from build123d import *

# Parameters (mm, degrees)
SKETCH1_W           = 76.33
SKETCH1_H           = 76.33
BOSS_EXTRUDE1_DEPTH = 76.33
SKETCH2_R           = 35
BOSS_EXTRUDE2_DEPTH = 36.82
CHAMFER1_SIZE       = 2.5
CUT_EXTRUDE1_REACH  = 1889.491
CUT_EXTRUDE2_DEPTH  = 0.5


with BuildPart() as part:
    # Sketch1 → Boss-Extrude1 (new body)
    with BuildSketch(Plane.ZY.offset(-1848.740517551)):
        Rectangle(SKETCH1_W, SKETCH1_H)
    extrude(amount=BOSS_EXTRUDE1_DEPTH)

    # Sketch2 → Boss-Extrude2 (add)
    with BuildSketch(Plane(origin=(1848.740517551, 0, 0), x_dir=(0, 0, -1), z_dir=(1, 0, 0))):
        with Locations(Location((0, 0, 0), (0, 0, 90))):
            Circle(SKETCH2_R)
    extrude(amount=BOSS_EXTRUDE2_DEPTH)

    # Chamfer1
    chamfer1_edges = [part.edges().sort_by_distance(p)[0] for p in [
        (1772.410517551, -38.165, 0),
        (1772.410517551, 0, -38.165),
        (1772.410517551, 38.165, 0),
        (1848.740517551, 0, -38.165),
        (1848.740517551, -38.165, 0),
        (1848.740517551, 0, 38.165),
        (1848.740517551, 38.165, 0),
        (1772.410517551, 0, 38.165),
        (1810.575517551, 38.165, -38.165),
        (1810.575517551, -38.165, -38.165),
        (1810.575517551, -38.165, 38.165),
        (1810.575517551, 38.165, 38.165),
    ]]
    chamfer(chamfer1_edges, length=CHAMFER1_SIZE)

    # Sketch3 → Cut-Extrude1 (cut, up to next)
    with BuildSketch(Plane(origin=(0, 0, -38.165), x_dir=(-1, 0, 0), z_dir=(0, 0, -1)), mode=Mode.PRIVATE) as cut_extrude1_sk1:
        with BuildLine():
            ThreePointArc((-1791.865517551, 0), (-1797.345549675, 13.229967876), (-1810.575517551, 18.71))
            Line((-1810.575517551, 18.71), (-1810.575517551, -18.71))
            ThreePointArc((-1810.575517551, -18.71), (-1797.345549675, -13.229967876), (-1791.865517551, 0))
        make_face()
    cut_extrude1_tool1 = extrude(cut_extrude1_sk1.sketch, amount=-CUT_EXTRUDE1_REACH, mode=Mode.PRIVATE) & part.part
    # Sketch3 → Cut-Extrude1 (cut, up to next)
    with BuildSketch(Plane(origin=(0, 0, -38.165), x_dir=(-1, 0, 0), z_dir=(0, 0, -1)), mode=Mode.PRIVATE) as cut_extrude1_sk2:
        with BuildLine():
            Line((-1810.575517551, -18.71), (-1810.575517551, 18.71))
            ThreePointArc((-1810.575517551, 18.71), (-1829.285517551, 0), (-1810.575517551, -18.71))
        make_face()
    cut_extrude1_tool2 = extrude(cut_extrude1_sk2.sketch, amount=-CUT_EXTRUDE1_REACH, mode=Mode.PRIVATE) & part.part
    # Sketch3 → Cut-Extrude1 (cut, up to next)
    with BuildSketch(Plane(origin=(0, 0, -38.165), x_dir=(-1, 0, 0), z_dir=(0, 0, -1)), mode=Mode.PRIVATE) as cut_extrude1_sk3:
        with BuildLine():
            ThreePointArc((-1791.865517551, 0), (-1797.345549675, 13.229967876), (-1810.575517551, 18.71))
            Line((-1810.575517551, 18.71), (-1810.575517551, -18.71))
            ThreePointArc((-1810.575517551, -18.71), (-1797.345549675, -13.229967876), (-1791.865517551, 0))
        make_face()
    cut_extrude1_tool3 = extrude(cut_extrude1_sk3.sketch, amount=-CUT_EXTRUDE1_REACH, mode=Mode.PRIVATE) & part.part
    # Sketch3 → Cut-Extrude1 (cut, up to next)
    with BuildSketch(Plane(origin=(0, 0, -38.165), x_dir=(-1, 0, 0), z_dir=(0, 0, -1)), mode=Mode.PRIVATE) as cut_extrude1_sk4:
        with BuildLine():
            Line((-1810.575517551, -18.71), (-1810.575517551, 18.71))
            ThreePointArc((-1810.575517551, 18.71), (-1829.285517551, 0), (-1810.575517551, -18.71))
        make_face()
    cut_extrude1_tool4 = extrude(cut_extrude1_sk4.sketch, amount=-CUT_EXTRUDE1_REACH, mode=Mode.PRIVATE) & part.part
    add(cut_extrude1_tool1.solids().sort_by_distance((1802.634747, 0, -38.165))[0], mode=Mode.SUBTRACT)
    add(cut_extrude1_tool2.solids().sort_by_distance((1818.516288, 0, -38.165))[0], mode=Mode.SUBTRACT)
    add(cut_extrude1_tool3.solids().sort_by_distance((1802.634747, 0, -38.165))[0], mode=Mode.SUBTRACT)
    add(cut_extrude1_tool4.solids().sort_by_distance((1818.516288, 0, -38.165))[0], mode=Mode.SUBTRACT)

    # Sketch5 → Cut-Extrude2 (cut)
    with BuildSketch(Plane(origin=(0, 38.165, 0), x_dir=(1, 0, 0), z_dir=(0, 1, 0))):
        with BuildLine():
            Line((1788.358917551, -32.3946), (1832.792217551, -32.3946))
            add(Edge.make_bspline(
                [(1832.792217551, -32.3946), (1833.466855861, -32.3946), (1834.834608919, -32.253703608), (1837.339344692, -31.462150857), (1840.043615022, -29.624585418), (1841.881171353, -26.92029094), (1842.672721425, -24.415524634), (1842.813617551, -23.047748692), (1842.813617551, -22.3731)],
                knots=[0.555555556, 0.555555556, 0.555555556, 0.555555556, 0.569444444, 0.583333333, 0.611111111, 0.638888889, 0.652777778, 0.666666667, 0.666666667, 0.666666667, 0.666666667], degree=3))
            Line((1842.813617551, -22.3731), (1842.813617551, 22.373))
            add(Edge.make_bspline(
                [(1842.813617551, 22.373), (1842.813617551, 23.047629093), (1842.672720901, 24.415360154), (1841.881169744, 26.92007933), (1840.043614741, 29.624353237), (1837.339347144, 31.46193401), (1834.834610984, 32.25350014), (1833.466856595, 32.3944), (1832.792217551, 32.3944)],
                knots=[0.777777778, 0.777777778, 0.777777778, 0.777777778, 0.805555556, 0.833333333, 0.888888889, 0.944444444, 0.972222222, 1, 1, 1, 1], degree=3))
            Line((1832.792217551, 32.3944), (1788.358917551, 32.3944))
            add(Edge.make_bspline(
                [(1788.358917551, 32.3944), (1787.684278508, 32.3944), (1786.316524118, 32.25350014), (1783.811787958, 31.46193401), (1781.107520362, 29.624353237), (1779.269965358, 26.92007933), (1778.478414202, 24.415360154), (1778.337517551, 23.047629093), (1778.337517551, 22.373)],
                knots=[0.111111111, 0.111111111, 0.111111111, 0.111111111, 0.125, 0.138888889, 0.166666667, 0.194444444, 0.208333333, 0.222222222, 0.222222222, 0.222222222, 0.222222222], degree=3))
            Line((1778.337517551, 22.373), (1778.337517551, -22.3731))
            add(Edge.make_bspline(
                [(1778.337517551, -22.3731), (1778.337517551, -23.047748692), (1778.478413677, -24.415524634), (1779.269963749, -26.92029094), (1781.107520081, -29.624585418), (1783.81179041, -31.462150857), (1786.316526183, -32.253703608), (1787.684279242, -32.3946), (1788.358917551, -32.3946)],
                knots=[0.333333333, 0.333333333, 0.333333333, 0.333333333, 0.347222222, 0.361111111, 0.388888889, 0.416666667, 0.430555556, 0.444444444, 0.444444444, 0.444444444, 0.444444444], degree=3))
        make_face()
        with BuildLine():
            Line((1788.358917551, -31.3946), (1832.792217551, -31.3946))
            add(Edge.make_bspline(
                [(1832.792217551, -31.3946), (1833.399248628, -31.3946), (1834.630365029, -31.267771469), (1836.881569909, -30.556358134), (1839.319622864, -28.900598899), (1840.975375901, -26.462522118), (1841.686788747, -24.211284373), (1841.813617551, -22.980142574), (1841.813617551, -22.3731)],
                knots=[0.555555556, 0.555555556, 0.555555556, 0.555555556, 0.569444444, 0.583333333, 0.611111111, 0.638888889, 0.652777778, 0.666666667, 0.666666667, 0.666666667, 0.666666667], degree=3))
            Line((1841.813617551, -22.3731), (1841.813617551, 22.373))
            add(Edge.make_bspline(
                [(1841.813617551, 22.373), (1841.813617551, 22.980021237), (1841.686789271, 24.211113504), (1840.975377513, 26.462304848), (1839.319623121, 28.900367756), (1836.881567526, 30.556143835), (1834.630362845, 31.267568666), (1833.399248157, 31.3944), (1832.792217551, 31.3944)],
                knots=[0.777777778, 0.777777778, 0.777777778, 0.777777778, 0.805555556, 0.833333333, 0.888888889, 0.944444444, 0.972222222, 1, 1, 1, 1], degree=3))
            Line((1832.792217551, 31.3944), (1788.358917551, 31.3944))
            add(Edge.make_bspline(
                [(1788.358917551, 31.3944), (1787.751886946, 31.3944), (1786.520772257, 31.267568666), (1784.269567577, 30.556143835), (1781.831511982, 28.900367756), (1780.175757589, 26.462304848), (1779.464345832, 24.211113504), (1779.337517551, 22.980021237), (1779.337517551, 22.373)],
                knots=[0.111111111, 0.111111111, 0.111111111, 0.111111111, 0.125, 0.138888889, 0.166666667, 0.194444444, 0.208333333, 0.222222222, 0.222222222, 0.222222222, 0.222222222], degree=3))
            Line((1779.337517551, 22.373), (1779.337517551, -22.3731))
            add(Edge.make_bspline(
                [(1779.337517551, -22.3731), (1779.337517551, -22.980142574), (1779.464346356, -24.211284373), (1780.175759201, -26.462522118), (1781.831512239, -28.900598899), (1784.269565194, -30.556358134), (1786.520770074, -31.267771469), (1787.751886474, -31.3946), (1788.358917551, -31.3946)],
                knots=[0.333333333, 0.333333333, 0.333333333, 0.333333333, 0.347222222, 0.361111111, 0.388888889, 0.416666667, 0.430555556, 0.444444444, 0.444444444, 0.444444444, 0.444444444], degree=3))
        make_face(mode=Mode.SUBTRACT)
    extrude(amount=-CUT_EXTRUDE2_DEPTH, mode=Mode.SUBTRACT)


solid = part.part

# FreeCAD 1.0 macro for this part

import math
import FreeCAD as App
import Part
import Sketcher

V = App.Vector


def edges_at(feature, points):
    """Names of the edges that pass closest to the given points."""
    edges = feature.Shape.Edges
    near = lambda p: min(range(len(edges)), key=lambda i: edges[i].distToShape(Part.Vertex(*p))[0])
    return sorted({f"Edge{near(p) + 1}" for p in points})


def add_polygon(sketch, points):
    """Adds a closed chain of lines whose ends are joined by coincident constraints."""
    first, n = sketch.GeometryCount, len(points)
    for a, b in zip(points, points[1:] + points[:1]):
        sketch.addGeometry(Part.LineSegment(App.Vector(*a, 0), App.Vector(*b, 0)), False)
    for i in range(n):
        sketch.addConstraint(Sketcher.Constraint("Coincident", first + i, 2, first + (i + 1) % n, 1))

doc = App.newDocument("Part")
body = doc.addObject("PartDesign::Body", "Body")

sketch1 = body.newObject("Sketcher::SketchObject", "Sketch")
sketch1.AttachmentSupport = (doc.getObject("YZ_Plane"), [""])
sketch1.MapMode = "FlatFace"
sketch1.AttachmentOffset = App.Placement(V(0, 0, 1848.740518), App.Rotation())
add_polygon(sketch1, [(38, -38), (-38, -38), (-38, 38), (38, 38)])
sketch1.addConstraint([
    Sketcher.Constraint("Horizontal", 0),
    Sketcher.Constraint("Vertical", 1),
    Sketcher.Constraint("Horizontal", 2),
    Sketcher.Constraint("Vertical", 3),
    Sketcher.Constraint("Symmetric", 0, 2, 2, 2, -1, 1),
    Sketcher.Constraint("Equal", 2, 1),
    Sketcher.Constraint("DistanceX", 0, 2, 0, 1, 76.33),
])
pad1 = body.newObject("PartDesign::Pad", "Pad")
pad1.Profile = sketch1
pad1.Length = 76.33
pad1.Reversed = True

sketch2 = body.newObject("Sketcher::SketchObject", "Sketch001")
sketch2.AttachmentSupport = (doc.getObject("YZ_Plane"), [""])
sketch2.MapMode = "FlatFace"
sketch2.AttachmentOffset = App.Placement(V(0, 0, 1848.740518), App.Rotation())
sketch2.addGeometry(Part.Circle(V(0, 0, 0), V(0, 0, 1), 35), False)
sketch2.addConstraint([
    Sketcher.Constraint("Coincident", 0, 3, -1, 1),
    Sketcher.Constraint("Diameter", 0, 70.0),
])
pad2 = body.newObject("PartDesign::Pad", "Pad001")
pad2.Profile = sketch2
pad2.Length = 36.82
doc.recompute()

chamfer = body.newObject("PartDesign::Chamfer", "Chamfer")
chamfer.Base = (pad2, edges_at(pad2, [
    (1772.411, -38.165, 0),
    (1772.411, 0, -38.165),
    (1772.411, 38.165, 0),
    (1848.741, 0, -38.165),
    (1848.741, -38.165, 0),
    (1848.741, 0, 38.165),
    (1848.741, 38.165, 0),
    (1772.411, 0, 38.165),
    (1810.576, 38.165, -38.165),
    (1810.576, -38.165, -38.165),
    (1810.576, -38.165, 38.165),
    (1810.576, 38.165, 38.165),
]))
chamfer.Size = 2.5

sketch3 = body.newObject("Sketcher::SketchObject", "Sketch002")
sketch3.AttachmentSupport = (doc.getObject("XY_Plane"), [""])
sketch3.MapMode = "FlatFace"
sketch3.AttachmentOffset = App.Placement(V(0, 0, -38.165), App.Rotation())
sketch3.addGeometry([
    Part.LineSegment(V(1811, 19, 0), V(1811, -19, 0)),
    Part.ArcOfCircle(Part.Circle(V(1811, 0, 0), V(0, 0, 1), 19), math.radians(90), math.radians(270)),
], False)
sketch3.addConstraint([
    Sketcher.Constraint("Coincident", 0, 1, 1, 1),
    Sketcher.Constraint("Coincident", 1, 2, 0, 2),
    Sketcher.Constraint("Vertical", 0),
    Sketcher.Constraint("PointOnObject", 1, 3, -1),
    Sketcher.Constraint("Vertical", 1, 3, 0, 1),
    Sketcher.Constraint("Radius", 1, 18.71),
    Sketcher.Constraint("DistanceX", -1, 1, 1, 3, 1810.575518),
])
pocket1 = body.newObject("PartDesign::Pocket", "Pocket")
pocket1.Profile = sketch3
pocket1.Type = "UpToFirst"
pocket1.Reversed = True

sketch4 = body.newObject("Sketcher::SketchObject", "Sketch003")
sketch4.AttachmentSupport = (doc.getObject("XY_Plane"), [""])
sketch4.MapMode = "FlatFace"
sketch4.AttachmentOffset = App.Placement(V(0, 0, -38.165), App.Rotation())
sketch4.addGeometry([
    Part.LineSegment(V(1811, -19, 0), V(1811, 19, 0)),
    Part.ArcOfCircle(Part.Circle(V(1811, 0, 0), V(0, 0, 1), 19), math.radians(-90), math.radians(90)),
], False)
sketch4.addConstraint([
    Sketcher.Constraint("Coincident", 0, 1, 1, 1),
    Sketcher.Constraint("Coincident", 1, 2, 0, 2),
    Sketcher.Constraint("Vertical", 0),
    Sketcher.Constraint("PointOnObject", 1, 3, -1),
    Sketcher.Constraint("Vertical", 1, 3, 0, 1),
    Sketcher.Constraint("Radius", 1, 18.71),
    Sketcher.Constraint("DistanceX", -1, 1, 1, 3, 1810.575518),
])
pocket2 = body.newObject("PartDesign::Pocket", "Pocket001")
pocket2.Profile = sketch4
pocket2.Type = "UpToFirst"
pocket2.Reversed = True

sketch5 = body.newObject("Sketcher::SketchObject", "Sketch004")
sketch5.AttachmentSupport = (doc.getObject("XY_Plane"), [""])
sketch5.MapMode = "FlatFace"
sketch5.AttachmentOffset = App.Placement(V(0, 0, -38.165), App.Rotation())
sketch5.addGeometry([
    Part.LineSegment(V(1811, 19, 0), V(1811, -19, 0)),
    Part.ArcOfCircle(Part.Circle(V(1811, 0, 0), V(0, 0, 1), 19), math.radians(90), math.radians(270)),
], False)
sketch5.addConstraint([
    Sketcher.Constraint("Coincident", 0, 1, 1, 1),
    Sketcher.Constraint("Coincident", 1, 2, 0, 2),
    Sketcher.Constraint("Vertical", 0),
    Sketcher.Constraint("PointOnObject", 1, 3, -1),
    Sketcher.Constraint("Vertical", 1, 3, 0, 1),
    Sketcher.Constraint("Radius", 1, 18.71),
    Sketcher.Constraint("DistanceX", -1, 1, 1, 3, 1810.575518),
])
pocket3 = body.newObject("PartDesign::Pocket", "Pocket002")
pocket3.Profile = sketch5
pocket3.Length = 76.33
pocket3.Reversed = True

sketch6 = body.newObject("Sketcher::SketchObject", "Sketch005")
sketch6.AttachmentSupport = (doc.getObject("XY_Plane"), [""])
sketch6.MapMode = "FlatFace"
sketch6.AttachmentOffset = App.Placement(V(0, 0, -38.165), App.Rotation())
sketch6.addGeometry([
    Part.LineSegment(V(1811, -19, 0), V(1811, 19, 0)),
    Part.ArcOfCircle(Part.Circle(V(1811, 0, 0), V(0, 0, 1), 19), math.radians(-90), math.radians(90)),
], False)
sketch6.addConstraint([
    Sketcher.Constraint("Coincident", 0, 1, 1, 1),
    Sketcher.Constraint("Coincident", 1, 2, 0, 2),
    Sketcher.Constraint("Vertical", 0),
    Sketcher.Constraint("PointOnObject", 1, 3, -1),
    Sketcher.Constraint("Vertical", 1, 3, 0, 1),
    Sketcher.Constraint("Radius", 1, 18.71),
    Sketcher.Constraint("DistanceX", -1, 1, 1, 3, 1810.575518),
])
pocket4 = body.newObject("PartDesign::Pocket", "Pocket003")
pocket4.Profile = sketch6
pocket4.Length = 76.33
pocket4.Reversed = True

sketch7 = body.newObject("Sketcher::SketchObject", "Sketch006")
sketch7.AttachmentSupport = (doc.getObject("XZ_Plane"), [""])
sketch7.MapMode = "FlatFace"
sketch7.AttachmentOffset = App.Placement(V(0, 0, -38.165), App.Rotation())
sketch7.addGeometry([
    Part.LineSegment(V(1788.358918, 32.3946, 0), V(1832.792218, 32.3946, 0)),
    Part.BSplineCurve([V(1832.792218, 32.3946, 0), V(1833.466856, 32.3946, 0), V(1834.834609, 32.253704, 0), V(1837.339345, 31.462151, 0), V(1840.043615, 29.624585, 0), V(1841.881171, 26.920291, 0), V(1842.672721, 24.415525, 0), V(1842.813618, 23.047749, 0), V(1842.813618, 22.3731, 0)], [4, 1, 1, 1, 1, 1, 4], [0.555555556, 0.569444444, 0.583333333, 0.611111111, 0.638888889, 0.652777778, 0.666666667], False, 3, [1, 1, 1, 1, 1, 1, 1, 1, 1], False),
    Part.LineSegment(V(1842.813618, 22.3731, 0), V(1842.813618, -22.373, 0)),
    Part.BSplineCurve([V(1842.813618, -22.373, 0), V(1842.813618, -23.047629, 0), V(1842.672721, -24.41536, 0), V(1841.88117, -26.920079, 0), V(1840.043615, -29.624353, 0), V(1837.339347, -31.461934, 0), V(1834.834611, -32.2535, 0), V(1833.466857, -32.3944, 0), V(1832.792218, -32.3944, 0)], [4, 1, 1, 1, 1, 1, 4], [0.777777778, 0.805555556, 0.833333333, 0.888888889, 0.944444444, 0.972222222, 1], False, 3, [1, 1, 1, 1, 1, 1, 1, 1, 1], False),
    Part.LineSegment(V(1832.792218, -32.3944, 0), V(1788.358918, -32.3944, 0)),
    Part.BSplineCurve([V(1788.358918, -32.3944, 0), V(1787.684279, -32.3944, 0), V(1786.316524, -32.2535, 0), V(1783.811788, -31.461934, 0), V(1781.10752, -29.624353, 0), V(1779.269965, -26.920079, 0), V(1778.478414, -24.41536, 0), V(1778.337518, -23.047629, 0), V(1778.337518, -22.373, 0)], [4, 1, 1, 1, 1, 1, 4], [0.111111111, 0.125, 0.138888889, 0.166666667, 0.194444444, 0.208333333, 0.222222222], False, 3, [1, 1, 1, 1, 1, 1, 1, 1, 1], False),
    Part.LineSegment(V(1778.337518, -22.373, 0), V(1778.337518, 22.3731, 0)),
    Part.BSplineCurve([V(1778.337518, 22.3731, 0), V(1778.337518, 23.047749, 0), V(1778.478414, 24.415525, 0), V(1779.269964, 26.920291, 0), V(1781.10752, 29.624585, 0), V(1783.81179, 31.462151, 0), V(1786.316526, 32.253704, 0), V(1787.684279, 32.3946, 0), V(1788.358918, 32.3946, 0)], [4, 1, 1, 1, 1, 1, 4], [0.333333333, 0.347222222, 0.361111111, 0.388888889, 0.416666667, 0.430555556, 0.444444444], False, 3, [1, 1, 1, 1, 1, 1, 1, 1, 1], False),
    Part.LineSegment(V(1832.792218, 31.3946, 0), V(1788.358918, 31.3946, 0)),
    Part.BSplineCurve([V(1779.337518, 22.3731, 0), V(1779.337518, 22.980143, 0), V(1779.464346, 24.211284, 0), V(1780.175759, 26.462522, 0), V(1781.831512, 28.900599, 0), V(1784.269565, 30.556358, 0), V(1786.52077, 31.267771, 0), V(1787.751886, 31.3946, 0), V(1788.358918, 31.3946, 0)], [4, 1, 1, 1, 1, 1, 4], [0.333333333, 0.347222222, 0.361111111, 0.388888889, 0.416666667, 0.430555556, 0.444444444], False, 3, [1, 1, 1, 1, 1, 1, 1, 1, 1], False),
    Part.LineSegment(V(1779.337518, 22.3731, 0), V(1779.337518, -22.373, 0)),
    Part.BSplineCurve([V(1788.358918, -31.3944, 0), V(1787.751887, -31.3944, 0), V(1786.520772, -31.267569, 0), V(1784.269568, -30.556144, 0), V(1781.831512, -28.900368, 0), V(1780.175758, -26.462305, 0), V(1779.464346, -24.211114, 0), V(1779.337518, -22.980021, 0), V(1779.337518, -22.373, 0)], [4, 1, 1, 1, 1, 1, 4], [0.111111111, 0.125, 0.138888889, 0.166666667, 0.194444444, 0.208333333, 0.222222222], False, 3, [1, 1, 1, 1, 1, 1, 1, 1, 1], False),
    Part.LineSegment(V(1788.358918, -31.3944, 0), V(1832.792218, -31.3944, 0)),
    Part.BSplineCurve([V(1841.813618, -22.373, 0), V(1841.813618, -22.980021, 0), V(1841.686789, -24.211114, 0), V(1840.975378, -26.462305, 0), V(1839.319623, -28.900368, 0), V(1836.881568, -30.556144, 0), V(1834.630363, -31.267569, 0), V(1833.399248, -31.3944, 0), V(1832.792218, -31.3944, 0)], [4, 1, 1, 1, 1, 1, 4], [0.777777778, 0.805555556, 0.833333333, 0.888888889, 0.944444444, 0.972222222, 1], False, 3, [1, 1, 1, 1, 1, 1, 1, 1, 1], False),
    Part.LineSegment(V(1841.813618, -22.373, 0), V(1841.813618, 22.3731, 0)),
    Part.BSplineCurve([V(1832.792218, 31.3946, 0), V(1833.399249, 31.3946, 0), V(1834.630365, 31.267771, 0), V(1836.88157, 30.556358, 0), V(1839.319623, 28.900599, 0), V(1840.975376, 26.462522, 0), V(1841.686789, 24.211284, 0), V(1841.813618, 22.980143, 0), V(1841.813618, 22.3731, 0)], [4, 1, 1, 1, 1, 1, 4], [0.555555556, 0.569444444, 0.583333333, 0.611111111, 0.638888889, 0.652777778, 0.666666667], False, 3, [1, 1, 1, 1, 1, 1, 1, 1, 1], False),
], False)
sketch7.addConstraint([
    Sketcher.Constraint("Block", 1),
    Sketcher.Constraint("Block", 3),
    Sketcher.Constraint("Block", 5),
    Sketcher.Constraint("Block", 7),
    Sketcher.Constraint("Block", 9),
    Sketcher.Constraint("Block", 11),
    Sketcher.Constraint("Block", 13),
    Sketcher.Constraint("Block", 15),
    Sketcher.Constraint("Coincident", 0, 2, 1, 1),
    Sketcher.Constraint("Coincident", 1, 2, 2, 1),
    Sketcher.Constraint("Coincident", 2, 2, 3, 1),
    Sketcher.Constraint("Coincident", 3, 2, 4, 1),
    Sketcher.Constraint("Coincident", 4, 2, 5, 1),
    Sketcher.Constraint("Coincident", 5, 2, 6, 1),
    Sketcher.Constraint("Coincident", 6, 2, 7, 1),
    Sketcher.Constraint("Coincident", 7, 2, 0, 1),
    Sketcher.Constraint("Coincident", 8, 2, 9, 2),
    Sketcher.Constraint("Coincident", 9, 1, 10, 1),
    Sketcher.Constraint("Coincident", 10, 2, 11, 2),
    Sketcher.Constraint("Coincident", 11, 1, 12, 1),
    Sketcher.Constraint("Coincident", 12, 2, 13, 2),
    Sketcher.Constraint("Coincident", 13, 1, 14, 1),
    Sketcher.Constraint("Coincident", 14, 2, 15, 2),
    Sketcher.Constraint("Coincident", 15, 1, 8, 1),
])
pocket5 = body.newObject("PartDesign::Pocket", "Pocket004")
pocket5.Profile = sketch7
pocket5.Length = 0.5
pocket5.Reversed = True

doc.recompute()
